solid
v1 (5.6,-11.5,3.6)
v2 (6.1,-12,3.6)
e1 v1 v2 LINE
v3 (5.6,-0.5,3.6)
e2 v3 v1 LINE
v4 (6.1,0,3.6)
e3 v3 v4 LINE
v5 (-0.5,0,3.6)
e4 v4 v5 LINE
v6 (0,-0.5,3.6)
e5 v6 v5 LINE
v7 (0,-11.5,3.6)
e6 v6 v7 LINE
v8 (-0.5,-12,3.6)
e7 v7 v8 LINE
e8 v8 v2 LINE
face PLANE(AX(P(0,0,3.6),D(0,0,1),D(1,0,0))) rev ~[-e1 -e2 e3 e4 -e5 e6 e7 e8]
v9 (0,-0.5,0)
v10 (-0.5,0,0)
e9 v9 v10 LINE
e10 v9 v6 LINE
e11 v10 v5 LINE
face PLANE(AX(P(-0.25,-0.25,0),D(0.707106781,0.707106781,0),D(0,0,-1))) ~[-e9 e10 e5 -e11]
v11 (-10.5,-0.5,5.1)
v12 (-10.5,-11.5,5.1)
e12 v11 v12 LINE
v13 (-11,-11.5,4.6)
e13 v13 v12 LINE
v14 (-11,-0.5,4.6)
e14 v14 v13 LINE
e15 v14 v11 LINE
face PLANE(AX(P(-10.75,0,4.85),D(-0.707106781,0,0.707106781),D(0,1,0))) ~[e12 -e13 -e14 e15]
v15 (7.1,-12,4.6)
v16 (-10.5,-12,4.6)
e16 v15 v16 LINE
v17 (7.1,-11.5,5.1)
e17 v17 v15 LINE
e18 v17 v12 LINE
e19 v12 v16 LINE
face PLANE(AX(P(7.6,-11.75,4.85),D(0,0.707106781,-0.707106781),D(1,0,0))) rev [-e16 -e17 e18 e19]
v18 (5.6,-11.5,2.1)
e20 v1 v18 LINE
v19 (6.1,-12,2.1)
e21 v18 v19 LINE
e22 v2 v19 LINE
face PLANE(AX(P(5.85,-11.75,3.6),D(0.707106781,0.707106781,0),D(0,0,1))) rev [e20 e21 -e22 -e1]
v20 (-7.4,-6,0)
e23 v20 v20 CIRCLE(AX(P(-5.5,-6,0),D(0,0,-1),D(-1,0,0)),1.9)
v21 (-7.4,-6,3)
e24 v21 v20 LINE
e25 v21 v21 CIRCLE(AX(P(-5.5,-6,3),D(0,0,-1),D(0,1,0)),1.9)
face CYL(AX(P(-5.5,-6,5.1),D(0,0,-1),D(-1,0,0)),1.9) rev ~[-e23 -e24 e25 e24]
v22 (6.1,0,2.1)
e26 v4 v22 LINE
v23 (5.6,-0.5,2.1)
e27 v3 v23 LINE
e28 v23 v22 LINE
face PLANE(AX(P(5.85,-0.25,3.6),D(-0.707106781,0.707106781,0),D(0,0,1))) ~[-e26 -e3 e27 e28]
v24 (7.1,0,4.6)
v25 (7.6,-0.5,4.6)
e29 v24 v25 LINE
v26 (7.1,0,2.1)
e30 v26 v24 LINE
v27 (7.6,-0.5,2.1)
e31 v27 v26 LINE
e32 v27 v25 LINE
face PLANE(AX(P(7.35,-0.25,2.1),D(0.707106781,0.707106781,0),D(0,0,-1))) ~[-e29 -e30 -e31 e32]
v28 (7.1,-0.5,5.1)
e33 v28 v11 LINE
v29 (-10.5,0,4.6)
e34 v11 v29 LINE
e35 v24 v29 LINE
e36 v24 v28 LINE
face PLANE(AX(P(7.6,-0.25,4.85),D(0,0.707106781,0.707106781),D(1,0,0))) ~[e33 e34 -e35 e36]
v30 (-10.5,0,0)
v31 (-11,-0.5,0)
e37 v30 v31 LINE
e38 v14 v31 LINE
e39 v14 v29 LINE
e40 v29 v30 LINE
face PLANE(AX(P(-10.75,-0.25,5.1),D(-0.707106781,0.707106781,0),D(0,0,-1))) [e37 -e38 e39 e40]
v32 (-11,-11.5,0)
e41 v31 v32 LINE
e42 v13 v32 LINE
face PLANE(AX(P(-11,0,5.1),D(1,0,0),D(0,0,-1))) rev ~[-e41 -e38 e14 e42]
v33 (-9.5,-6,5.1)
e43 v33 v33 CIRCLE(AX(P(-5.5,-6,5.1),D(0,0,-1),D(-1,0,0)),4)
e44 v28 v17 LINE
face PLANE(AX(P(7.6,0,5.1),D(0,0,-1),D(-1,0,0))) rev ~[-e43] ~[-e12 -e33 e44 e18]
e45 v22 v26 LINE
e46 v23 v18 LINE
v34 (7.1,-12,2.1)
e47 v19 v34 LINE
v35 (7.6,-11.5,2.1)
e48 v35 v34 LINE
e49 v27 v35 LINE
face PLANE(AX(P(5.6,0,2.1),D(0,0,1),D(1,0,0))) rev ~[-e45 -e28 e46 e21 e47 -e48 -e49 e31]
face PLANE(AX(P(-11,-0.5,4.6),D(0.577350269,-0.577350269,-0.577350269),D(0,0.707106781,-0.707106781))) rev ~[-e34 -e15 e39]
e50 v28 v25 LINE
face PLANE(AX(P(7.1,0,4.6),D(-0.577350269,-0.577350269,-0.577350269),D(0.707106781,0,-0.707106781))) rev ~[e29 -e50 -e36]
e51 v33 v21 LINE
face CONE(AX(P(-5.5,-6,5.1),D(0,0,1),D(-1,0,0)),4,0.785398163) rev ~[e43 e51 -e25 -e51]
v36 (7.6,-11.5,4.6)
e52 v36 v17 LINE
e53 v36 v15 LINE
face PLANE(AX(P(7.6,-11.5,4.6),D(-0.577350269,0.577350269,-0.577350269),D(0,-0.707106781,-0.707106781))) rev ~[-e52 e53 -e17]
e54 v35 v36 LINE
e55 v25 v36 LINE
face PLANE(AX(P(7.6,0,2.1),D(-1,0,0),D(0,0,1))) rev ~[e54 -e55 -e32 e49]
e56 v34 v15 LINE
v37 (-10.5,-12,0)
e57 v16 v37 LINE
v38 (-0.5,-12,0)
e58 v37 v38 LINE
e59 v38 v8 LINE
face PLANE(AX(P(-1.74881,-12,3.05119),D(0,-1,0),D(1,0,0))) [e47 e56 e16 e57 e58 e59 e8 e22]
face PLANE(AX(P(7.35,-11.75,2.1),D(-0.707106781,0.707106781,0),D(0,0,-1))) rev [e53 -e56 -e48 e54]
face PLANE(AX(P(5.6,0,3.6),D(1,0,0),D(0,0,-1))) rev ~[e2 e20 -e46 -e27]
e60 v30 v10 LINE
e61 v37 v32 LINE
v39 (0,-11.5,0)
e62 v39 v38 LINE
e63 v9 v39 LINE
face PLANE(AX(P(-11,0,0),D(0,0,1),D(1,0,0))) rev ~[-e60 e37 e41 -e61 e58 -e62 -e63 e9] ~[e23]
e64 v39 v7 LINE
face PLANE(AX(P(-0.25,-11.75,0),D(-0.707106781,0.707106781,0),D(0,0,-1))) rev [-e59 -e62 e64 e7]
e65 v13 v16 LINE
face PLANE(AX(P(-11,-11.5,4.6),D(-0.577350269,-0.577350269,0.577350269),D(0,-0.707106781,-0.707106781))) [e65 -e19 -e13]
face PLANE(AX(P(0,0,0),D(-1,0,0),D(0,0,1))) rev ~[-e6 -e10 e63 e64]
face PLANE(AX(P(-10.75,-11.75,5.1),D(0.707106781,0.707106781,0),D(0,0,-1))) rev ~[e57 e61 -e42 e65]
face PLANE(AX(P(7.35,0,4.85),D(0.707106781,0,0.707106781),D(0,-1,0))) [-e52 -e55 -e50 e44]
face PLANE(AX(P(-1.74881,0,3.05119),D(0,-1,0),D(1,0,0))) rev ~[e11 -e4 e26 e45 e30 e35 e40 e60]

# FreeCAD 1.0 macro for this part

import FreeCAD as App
import Part
import Sketcher

V = App.Vector


def edges_at(feature, points):
    """Names of the edges that pass closest to the given points."""
    edges = feature.Shape.Edges
    near = lambda p: min(range(len(edges)), key=lambda i: edges[i].distToShape(Part.Vertex(*p))[0])
    return sorted({f"Edge{near(p) + 1}" for p in points})

doc = App.newDocument("Part")
params = doc.addObject("Spreadsheet::Sheet", "Params")
for row, (alias, value) in enumerate([
    ("sketch1_width", "11 mm"),
    ("sketch1_width2", "2 mm"),
    ("sketch1_height", "3 mm"),
    ("sketch1_width3", "5.6 mm"),
    ("sketch1_height2", "3.6 mm"),
    ("pad1_length", "12 mm"),
    ("sketch2_diameter", "3.8 mm"),
    ("hole_diameter", "3.8 mm"),
    ("hole_depth", "40 mm"),
    ("hole_csink_diameter", "8 mm"),
    ("chamfer_size", "0.5 mm"),
], start=1):
    params.set(f"A{row}", alias)
    params.set(f"B{row}", "=" + value)
    params.setAlias(f"B{row}", alias)

body = doc.addObject("PartDesign::Body", "Body")

sketch1 = doc.addObject("Sketcher::SketchObject", "Sketch")
body.addObject(sketch1)
sketch1.AttachmentSupport = (doc.XZ_Plane, [""])
sketch1.MapMode = "FlatFace"
sketch1.addGeometry(Part.LineSegment(V(-11, 0, 0), V(0, 0, 0)), False)
sketch1.addGeometry(Part.LineSegment(V(0, 0, 0), V(0, 3.6, 0)), False)
sketch1.addGeometry(Part.LineSegment(V(0, 3.6, 0), V(5.6, 3.6, 0)), False)
sketch1.addGeometry(Part.LineSegment(V(5.6, 3.6, 0), V(5.6, 2.1, 0)), False)
sketch1.addGeometry(Part.LineSegment(V(5.6, 2.1, 0), V(7.6, 2.1, 0)), False)
sketch1.addGeometry(Part.LineSegment(V(7.6, 2.1, 0), V(7.6, 5.1, 0)), False)
sketch1.addGeometry(Part.LineSegment(V(7.6, 5.1, 0), V(-11, 5.1, 0)), False)
sketch1.addGeometry(Part.LineSegment(V(-11, 5.1, 0), V(-11, 0, 0)), False)
sketch1.addConstraint(Sketcher.Constraint("Coincident", 0, 2, 1, 1))
sketch1.addConstraint(Sketcher.Constraint("Coincident", 1, 2, 2, 1))
sketch1.addConstraint(Sketcher.Constraint("Coincident", 2, 2, 3, 1))
sketch1.addConstraint(Sketcher.Constraint("Coincident", 3, 2, 4, 1))
sketch1.addConstraint(Sketcher.Constraint("Coincident", 4, 2, 5, 1))
sketch1.addConstraint(Sketcher.Constraint("Coincident", 5, 2, 6, 1))
sketch1.addConstraint(Sketcher.Constraint("Coincident", 6, 2, 7, 1))
sketch1.addConstraint(Sketcher.Constraint("Coincident", 7, 2, 0, 1))
sketch1.addConstraint(Sketcher.Constraint("Horizontal", 0))
sketch1.addConstraint(Sketcher.Constraint("Vertical", 1))
sketch1.addConstraint(Sketcher.Constraint("Horizontal", 2))
sketch1.addConstraint(Sketcher.Constraint("Vertical", 3))
sketch1.addConstraint(Sketcher.Constraint("Horizontal", 4))
sketch1.addConstraint(Sketcher.Constraint("Vertical", 5))
sketch1.addConstraint(Sketcher.Constraint("Horizontal", 6))
sketch1.addConstraint(Sketcher.Constraint("Vertical", 7))
sketch1.addConstraint(Sketcher.Constraint("Coincident", 0, 2, -1, 1))
sketch1.addConstraint(Sketcher.Constraint("DistanceX", 0, 1, 0, 2, 11.0))
sketch1.addConstraint(Sketcher.Constraint("DistanceX", 4, 1, 4, 2, 2.0))
sketch1.addConstraint(Sketcher.Constraint("DistanceY", 5, 1, 5, 2, 3.0))
sketch1.addConstraint(Sketcher.Constraint("DistanceX", 2, 1, 2, 2, 5.6))
sketch1.addConstraint(Sketcher.Constraint("DistanceY", 1, 1, 1, 2, 3.6))
sketch1.addConstraint(Sketcher.Constraint("DistanceY", 3, 2, 3, 1, 1.5))
sketch1.setExpression("Constraints[17]", "Params.sketch1_width")
sketch1.setExpression("Constraints[18]", "Params.sketch1_width2")
sketch1.setExpression("Constraints[19]", "Params.sketch1_height")
sketch1.setExpression("Constraints[20]", "Params.sketch1_width3")
sketch1.setExpression("Constraints[21]", "Params.sketch1_height2")
pad1 = doc.addObject("PartDesign::Pad", "Pad")
body.addObject(pad1)
pad1.Profile = sketch1
pad1.setExpression("Length", "Params.pad1_length")

sketch2 = doc.addObject("Sketcher::SketchObject", "Sketch001")
body.addObject(sketch2)
sketch2.AttachmentSupport = (doc.XY_Plane, [""])
sketch2.MapMode = "FlatFace"
sketch2.AttachmentOffset = App.Placement(V(0, 0, 5.1), App.Rotation())
sketch2.addGeometry(Part.Circle(V(-5.5, -6, 0), V(0, 0, 1), 1.9), False)
sketch2.addConstraint(Sketcher.Constraint("Diameter", 0, 3.8))
sketch2.addConstraint(Sketcher.Constraint("DistanceY", 0, 3, -1, 1, 6.0))
sketch2.addConstraint(Sketcher.Constraint("DistanceX", 0, 3, -1, 1, 5.5))
sketch2.setExpression("Constraints[0]", "Params.sketch2_diameter")
doc.recompute()
hole = doc.addObject("PartDesign::Hole", "Hole")
body.addObject(hole)
hole.Profile = sketch2
hole.ThreadType = "None"
hole.setExpression("Diameter", "Params.hole_diameter")
hole.DepthType = "Dimension"
hole.setExpression("Depth", "Params.hole_depth")
hole.DrillPoint = "Flat"
hole.HoleCutType = "Countersink"
hole.setExpression("HoleCutDiameter", "Params.hole_csink_diameter")
hole.HoleCutCountersinkAngle = 90
doc.recompute()

chamfer = doc.addObject("PartDesign::Chamfer", "Chamfer")
body.addObject(chamfer)
chamfer.Base = (hole, edges_at(hole, [
    (-1.7, -12, 5.1),
    (7.6, -6, 5.1),
    (-1.7, 0, 5.1),
    (-11, -6, 5.1),
    (-11, -12, 2.55),
    (-11, 0, 2.55),
    (7.6, 0, 3.6),
    (7.6, -12, 3.6),
    (0, -12, 1.8),
    (5.6, -12, 2.85),
    (0, 0, 1.8),
    (5.6, 0, 2.85),
]))
chamfer.setExpression("Size", "Params.chamfer_size")

doc.recompute()
